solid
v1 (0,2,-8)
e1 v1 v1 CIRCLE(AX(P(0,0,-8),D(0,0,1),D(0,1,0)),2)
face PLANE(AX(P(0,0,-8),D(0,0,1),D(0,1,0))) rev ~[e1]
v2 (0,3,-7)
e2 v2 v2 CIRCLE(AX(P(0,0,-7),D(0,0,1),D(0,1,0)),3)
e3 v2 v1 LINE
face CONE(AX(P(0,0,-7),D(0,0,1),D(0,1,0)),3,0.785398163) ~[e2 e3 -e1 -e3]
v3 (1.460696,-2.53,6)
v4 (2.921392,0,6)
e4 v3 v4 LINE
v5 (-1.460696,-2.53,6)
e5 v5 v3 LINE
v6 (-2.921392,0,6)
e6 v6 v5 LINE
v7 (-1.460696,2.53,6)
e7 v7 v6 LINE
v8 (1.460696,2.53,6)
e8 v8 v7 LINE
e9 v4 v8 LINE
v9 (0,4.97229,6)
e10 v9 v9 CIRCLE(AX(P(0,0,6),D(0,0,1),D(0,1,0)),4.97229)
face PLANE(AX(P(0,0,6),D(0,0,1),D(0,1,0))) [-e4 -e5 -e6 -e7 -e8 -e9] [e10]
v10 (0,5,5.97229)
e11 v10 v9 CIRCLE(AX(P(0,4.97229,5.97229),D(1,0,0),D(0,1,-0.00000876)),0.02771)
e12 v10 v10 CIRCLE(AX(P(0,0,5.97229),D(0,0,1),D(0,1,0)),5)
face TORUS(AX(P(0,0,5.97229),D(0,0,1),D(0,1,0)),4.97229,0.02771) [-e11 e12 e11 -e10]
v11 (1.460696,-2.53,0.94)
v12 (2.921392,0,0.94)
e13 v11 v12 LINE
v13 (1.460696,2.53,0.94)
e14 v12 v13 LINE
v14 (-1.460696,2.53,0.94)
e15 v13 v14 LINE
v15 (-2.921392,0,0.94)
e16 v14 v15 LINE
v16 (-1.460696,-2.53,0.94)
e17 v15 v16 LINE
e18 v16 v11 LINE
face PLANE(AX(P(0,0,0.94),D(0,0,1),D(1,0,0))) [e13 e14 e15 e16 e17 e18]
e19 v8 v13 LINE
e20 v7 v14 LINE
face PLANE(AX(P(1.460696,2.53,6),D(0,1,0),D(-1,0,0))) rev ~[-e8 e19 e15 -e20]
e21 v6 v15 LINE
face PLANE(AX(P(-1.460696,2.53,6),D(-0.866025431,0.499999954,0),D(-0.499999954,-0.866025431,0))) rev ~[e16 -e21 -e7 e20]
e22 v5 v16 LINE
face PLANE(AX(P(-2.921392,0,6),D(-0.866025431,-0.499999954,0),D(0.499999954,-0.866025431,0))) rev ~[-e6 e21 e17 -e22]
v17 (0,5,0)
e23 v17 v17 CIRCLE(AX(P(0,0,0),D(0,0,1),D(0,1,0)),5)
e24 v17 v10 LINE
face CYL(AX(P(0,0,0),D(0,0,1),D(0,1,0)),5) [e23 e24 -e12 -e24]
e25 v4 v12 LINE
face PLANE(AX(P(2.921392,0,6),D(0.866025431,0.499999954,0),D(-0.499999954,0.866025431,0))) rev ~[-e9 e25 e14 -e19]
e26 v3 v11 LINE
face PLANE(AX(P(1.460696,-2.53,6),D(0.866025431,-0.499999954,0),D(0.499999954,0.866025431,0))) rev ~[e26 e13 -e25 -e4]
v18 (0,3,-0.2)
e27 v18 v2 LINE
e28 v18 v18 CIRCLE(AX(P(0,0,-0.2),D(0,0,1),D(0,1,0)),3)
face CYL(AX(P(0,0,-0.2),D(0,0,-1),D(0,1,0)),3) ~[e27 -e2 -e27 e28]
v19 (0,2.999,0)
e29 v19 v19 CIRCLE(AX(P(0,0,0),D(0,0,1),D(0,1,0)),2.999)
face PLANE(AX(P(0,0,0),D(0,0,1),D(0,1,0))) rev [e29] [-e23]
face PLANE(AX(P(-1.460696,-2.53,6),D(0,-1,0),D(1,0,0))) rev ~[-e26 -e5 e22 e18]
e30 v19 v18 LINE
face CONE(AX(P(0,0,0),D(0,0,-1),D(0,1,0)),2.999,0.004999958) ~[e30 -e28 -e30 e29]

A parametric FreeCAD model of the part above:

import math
import FreeCAD as App
import Part
import Sketcher

V = App.Vector
Q = App.Units.Quantity


def add_polygon(sketch, points):
    """Adds a closed chain of lines whose ends are joined by coincident constraints."""
    first, n = sketch.GeometryCount, len(points)
    for a, b in zip(points, points[1:] + points[:1]):
        sketch.addGeometry(Part.LineSegment(App.Vector(*a, 0), App.Vector(*b, 0)), False)
    for i in range(n):
        sketch.addConstraint(Sketcher.Constraint("Coincident", first + i, 2, first + (i + 1) % n, 1))

doc = App.newDocument("Part")
params = doc.addObject("Spreadsheet::Sheet", "Params")
for row, (alias, value) in enumerate([
    ("sketch1_width", "2 mm"),
    ("sketch1_height", "14 mm"),
    ("sketch1_height2", "6.8 mm"),
    ("revolution_angle", "360 deg"),
    ("pocket1_length", "5.06 mm"),
], start=1):
    params.set(f"A{row}", alias)
    params.set(f"B{row}", "=" + value)
    params.setAlias(f"B{row}", alias)

body = doc.addObject("PartDesign::Body", "Body")

sketch1 = doc.addObject("Sketcher::SketchObject", "Sketch")
body.addObject(sketch1)
sketch1.AttachmentSupport = (doc.YZ_Plane, [""])
sketch1.MapMode = "FlatFace"
sketch1.addGeometry(Part.LineSegment(V(2.999, 0, 0), V(5, 0, 0)), False)
sketch1.addGeometry(Part.LineSegment(V(5, 0, 0), V(5, 5.972, 0)), False)
sketch1.addGeometry(Part.ArcOfCircle(Part.Circle(V(4.972, 5.972, 0), V(0, 0, 1), 0.028), math.radians(0), math.radians(90)), False)
sketch1.addGeometry(Part.LineSegment(V(4.972, 6, 0), V(0, 6, 0)), False)
sketch1.addGeometry(Part.LineSegment(V(0, 6, 0), V(0, -8, 0)), False)
sketch1.addGeometry(Part.LineSegment(V(0, -8, 0), V(2, -8, 0)), False)
sketch1.addGeometry(Part.LineSegment(V(2, -8, 0), V(3, -7, 0)), False)
sketch1.addGeometry(Part.LineSegment(V(3, -7, 0), V(3, -0.2, 0)), False)
sketch1.addGeometry(Part.LineSegment(V(3, -0.2, 0), V(2.999, 0, 0)), False)
sketch1.addConstraint(Sketcher.Constraint("Coincident", 0, 2, 1, 1))
sketch1.addConstraint(Sketcher.Constraint("Coincident", 1, 2, 2, 1))
sketch1.addConstraint(Sketcher.Constraint("Coincident", 2, 2, 3, 1))
sketch1.addConstraint(Sketcher.Constraint("Coincident", 3, 2, 4, 1))
sketch1.addConstraint(Sketcher.Constraint("Coincident", 4, 2, 5, 1))
sketch1.addConstraint(Sketcher.Constraint("Coincident", 5, 2, 6, 1))
sketch1.addConstraint(Sketcher.Constraint("Coincident", 6, 2, 7, 1))
sketch1.addConstraint(Sketcher.Constraint("Coincident", 7, 2, 8, 1))
sketch1.addConstraint(Sketcher.Constraint("Coincident", 8, 2, 0, 1))
sketch1.addConstraint(Sketcher.Constraint("Horizontal", 0))
sketch1.addConstraint(Sketcher.Constraint("Vertical", 1))
sketch1.addConstraint(Sketcher.Constraint("Horizontal", 3))
sketch1.addConstraint(Sketcher.Constraint("Vertical", 4))
sketch1.addConstraint(Sketcher.Constraint("Horizontal", 5))
sketch1.addConstraint(Sketcher.Constraint("Vertical", 7))
sketch1.addConstraint(Sketcher.Constraint("PointOnObject", 0, 2, -1))
sketch1.addConstraint(Sketcher.Constraint("PointOnObject", 3, 2, -2))
sketch1.addConstraint(Sketcher.Constraint("Horizontal", 2, 3, 1, 2))
sketch1.addConstraint(Sketcher.Constraint("DistanceX", 5, 1, 5, 2, Q("2 mm")))
sketch1.addConstraint(Sketcher.Constraint("DistanceY", 4, 2, 4, 1, Q("14 mm")))
sketch1.addConstraint(Sketcher.Constraint("Angle", 6, Q("45 deg")))
sketch1.addConstraint(Sketcher.Constraint("DistanceY", 7, 1, 7, 2, Q("6.8 mm")))
sketch1.addConstraint(Sketcher.Constraint("DistanceX", -1, 1, 0, 2, Q("5 mm")))
sketch1.addConstraint(Sketcher.Constraint("DistanceY", -1, 1, 2, 2, Q("6 mm")))
sketch1.addConstraint(Sketcher.Constraint("DistanceX", -1, 1, 6, 2, Q("3 mm")))
sketch1.addConstraint(Sketcher.Constraint("DistanceX", 0, 1, 0, 2, Q("2.001 mm")))
sketch1.addConstraint(Sketcher.Constraint("Radius", 2, Q("0.02771 mm")))
sketch1.addConstraint(Sketcher.Constraint("DistanceX", 3, 2, 3, 1, Q("4.97229 mm")))
sketch1.setExpression("Constraints[18]", "Params.sketch1_width")
sketch1.setExpression("Constraints[19]", "Params.sketch1_height")
sketch1.setExpression("Constraints[21]", "Params.sketch1_height2")
revolution = doc.addObject("PartDesign::Revolution", "Revolution")
body.addObject(revolution)
revolution.Profile = sketch1
revolution.ReferenceAxis = (sketch1, ["V_Axis"])
revolution.setExpression("Angle", "Params.revolution_angle")

sketch2 = doc.addObject("Sketcher::SketchObject", "Sketch001")
body.addObject(sketch2)
sketch2.AttachmentSupport = (doc.XY_Plane, [""])
sketch2.MapMode = "FlatFace"
sketch2.AttachmentOffset = App.Placement(V(0, 0, 6), App.Rotation())
add_polygon(sketch2, [(2.9, 0), (1.5, 2.5), (-1.5, 2.5), (-2.9, 0), (-1.5, -2.5), (1.5, -2.5)])
sketch2.addConstraint(Sketcher.Constraint("Horizontal", 1))
sketch2.addConstraint(Sketcher.Constraint("Horizontal", 4))
sketch2.addConstraint(Sketcher.Constraint("Symmetric", 0, 2, 3, 2, -1, 1))
sketch2.addConstraint(Sketcher.Constraint("Symmetric", 2, 2, 5, 2, -1, 1))
sketch2.addConstraint(Sketcher.Constraint("PointOnObject", 2, 2, -1))
sketch2.addConstraint(Sketcher.Constraint("Parallel", 2, 5))
sketch2.addConstraint(Sketcher.Constraint("Vertical", 1, 2, 3, 2))
sketch2.addConstraint(Sketcher.Constraint("Angle", 0, Q("119.999997 deg")))
sketch2.addConstraint(Sketcher.Constraint("DistanceY", -1, 1, 0, 2, Q("2.53 mm")))
sketch2.addConstraint(Sketcher.Constraint("DistanceX", 1, 2, 1, 1, Q("2.921392 mm")))
pocket1 = doc.addObject("PartDesign::Pocket", "Pocket")
body.addObject(pocket1)
pocket1.Profile = sketch2
pocket1.setExpression("Length", "Params.pocket1_length")

doc.recompute()
